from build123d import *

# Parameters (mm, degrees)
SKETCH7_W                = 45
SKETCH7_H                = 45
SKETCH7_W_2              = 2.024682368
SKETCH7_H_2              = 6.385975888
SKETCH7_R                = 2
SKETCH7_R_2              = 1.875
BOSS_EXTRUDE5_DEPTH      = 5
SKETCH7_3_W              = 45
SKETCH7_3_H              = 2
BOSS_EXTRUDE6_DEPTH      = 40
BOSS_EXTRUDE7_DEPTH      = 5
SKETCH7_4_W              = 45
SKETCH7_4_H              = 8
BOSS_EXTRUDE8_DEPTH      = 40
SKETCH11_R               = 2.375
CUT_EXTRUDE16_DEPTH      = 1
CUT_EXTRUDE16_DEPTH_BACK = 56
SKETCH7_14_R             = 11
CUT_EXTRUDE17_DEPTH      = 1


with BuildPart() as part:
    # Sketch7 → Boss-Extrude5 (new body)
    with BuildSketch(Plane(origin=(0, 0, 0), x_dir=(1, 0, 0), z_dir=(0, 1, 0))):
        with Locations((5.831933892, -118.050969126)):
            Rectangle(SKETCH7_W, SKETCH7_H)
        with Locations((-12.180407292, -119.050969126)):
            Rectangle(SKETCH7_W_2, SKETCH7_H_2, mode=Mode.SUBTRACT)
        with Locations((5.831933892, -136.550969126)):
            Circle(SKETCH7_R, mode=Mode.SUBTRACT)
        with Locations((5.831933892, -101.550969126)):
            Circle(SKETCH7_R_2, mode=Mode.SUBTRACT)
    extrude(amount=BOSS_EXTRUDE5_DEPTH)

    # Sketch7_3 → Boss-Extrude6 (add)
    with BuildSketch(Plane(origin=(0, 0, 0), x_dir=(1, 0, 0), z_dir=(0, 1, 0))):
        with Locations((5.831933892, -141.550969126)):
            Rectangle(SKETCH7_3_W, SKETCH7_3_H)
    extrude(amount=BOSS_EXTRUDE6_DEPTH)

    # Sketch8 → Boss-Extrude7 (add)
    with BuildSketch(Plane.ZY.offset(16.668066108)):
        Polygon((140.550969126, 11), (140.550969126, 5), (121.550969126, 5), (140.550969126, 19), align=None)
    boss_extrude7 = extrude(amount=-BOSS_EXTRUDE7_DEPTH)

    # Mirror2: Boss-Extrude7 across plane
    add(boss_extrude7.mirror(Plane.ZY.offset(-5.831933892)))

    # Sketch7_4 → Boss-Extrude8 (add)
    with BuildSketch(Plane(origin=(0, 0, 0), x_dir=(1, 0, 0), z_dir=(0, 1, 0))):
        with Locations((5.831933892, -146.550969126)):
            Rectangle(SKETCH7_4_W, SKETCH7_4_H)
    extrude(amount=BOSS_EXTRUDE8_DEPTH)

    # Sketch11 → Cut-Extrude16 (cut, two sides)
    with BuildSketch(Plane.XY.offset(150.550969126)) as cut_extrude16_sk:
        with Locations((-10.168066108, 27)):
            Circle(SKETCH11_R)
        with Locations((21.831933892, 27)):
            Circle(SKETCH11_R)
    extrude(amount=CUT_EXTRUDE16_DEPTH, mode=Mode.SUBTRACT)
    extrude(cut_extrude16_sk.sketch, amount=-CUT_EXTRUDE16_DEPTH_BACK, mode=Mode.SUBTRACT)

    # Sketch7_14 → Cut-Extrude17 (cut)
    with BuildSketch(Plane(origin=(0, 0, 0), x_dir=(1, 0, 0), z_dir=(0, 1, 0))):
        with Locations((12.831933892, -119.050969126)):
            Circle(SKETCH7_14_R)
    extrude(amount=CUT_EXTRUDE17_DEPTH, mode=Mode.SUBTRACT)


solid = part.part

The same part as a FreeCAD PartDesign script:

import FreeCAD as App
import Part
import Sketcher

V = App.Vector
Q = App.Units.Quantity


def add_polygon(sketch, points):
    """Adds a closed chain of lines whose ends are joined by coincident constraints."""
    first, n = sketch.GeometryCount, len(points)
    for a, b in zip(points, points[1:] + points[:1]):
        sketch.addGeometry(Part.LineSegment(App.Vector(*a, 0), App.Vector(*b, 0)), False)
    for i in range(n):
        sketch.addConstraint(Sketcher.Constraint("Coincident", first + i, 2, first + (i + 1) % n, 1))

doc = App.newDocument("Part")
body = doc.addObject("PartDesign::Body", "Body")

# Sketch on XZ plane
sketch1 = body.newObject("Sketcher::SketchObject", "Sketch")
sketch1.AttachmentSupport = (doc.getObject("XZ_Plane"), [""])
sketch1.MapMode = "FlatFace"
add_polygon(sketch1, [(-16.7, 95.6), (-16.7, 140.6), (28.3, 140.6), (28.3, 95.6)])  # lines 0-3
sketch1.addGeometry(Part.Circle(V(5.8, 136.6, 0), V(0, 0, 1), 2), False)  # 4
add_polygon(sketch1, [(-11.2, 122.2), (-13.2, 122.2), (-13.2, 115.9), (-11.2, 115.9)])  # lines 5-8
sketch1.addGeometry(Part.Circle(V(5.8, 101.6, 0), V(0, 0, 1), 1.9), False)  # 9
sketch1.addConstraint([
    Sketcher.Constraint("Vertical", 0),
    Sketcher.Constraint("Horizontal", 1),
    Sketcher.Constraint("Vertical", 2),
    Sketcher.Constraint("Horizontal", 3),
    Sketcher.Constraint("Horizontal", 5),
    Sketcher.Constraint("Vertical", 6),
    Sketcher.Constraint("Horizontal", 7),
    Sketcher.Constraint("Vertical", 8),
    Sketcher.Constraint("Vertical", 4, 3, 9, 3),
    Sketcher.Constraint("Equal", 3, 0),
    Sketcher.Constraint("Diameter", 4, Q("4 mm")),
    Sketcher.Constraint("Diameter", 9, Q("3.75 mm")),
    Sketcher.Constraint("DistanceX", 1, 1, 1, 2, Q("45 mm")),
    Sketcher.Constraint("DistanceY", 9, 3, 4, 3, Q("35 mm")),
    Sketcher.Constraint("DistanceY", 4, 3, 0, 2, Q("4 mm")),
    Sketcher.Constraint("DistanceX", 7, 2, 9, 3, Q("17 mm")),
    Sketcher.Constraint("DistanceX", 0, 2, 4, 3, Q("22.5 mm")),
    Sketcher.Constraint("DistanceX", 5, 2, 5, 1, Q("2.024682 mm")),
    Sketcher.Constraint("DistanceY", 6, 2, 6, 1, Q("6.385976 mm")),
    Sketcher.Constraint("DistanceY", -1, 1, 4, 3, Q("136.550969 mm")),
    Sketcher.Constraint("DistanceX", 5, 2, -1, 1, Q("13.192748 mm")),
    Sketcher.Constraint("DistanceY", -1, 1, 6, 2, Q("115.857981 mm")),
])
pad1 = body.newObject("PartDesign::Pad", "Pad")
pad1.Profile = sketch1
pad1.Length = 5
pad1.Reversed = True

# Sketch on XZ plane
sketch2 = body.newObject("Sketcher::SketchObject", "Sketch001")
sketch2.AttachmentSupport = (doc.getObject("XZ_Plane"), [""])
sketch2.MapMode = "FlatFace"
add_polygon(sketch2, [(-16.7, 140.6), (-16.7, 142.6), (28.3, 142.6), (28.3, 140.6)])  # lines 0-3
sketch2.addConstraint([
    Sketcher.Constraint("Vertical", 0),
    Sketcher.Constraint("Horizontal", 1),
    Sketcher.Constraint("Vertical", 2),
    Sketcher.Constraint("Horizontal", 3),
    Sketcher.Constraint("DistanceX", 1, 1, 1, 2, Q("45 mm")),
    Sketcher.Constraint("DistanceY", 0, 1, 0, 2, Q("2 mm")),
    Sketcher.Constraint("DistanceY", -1, 1, 0, 2, Q("142.550969 mm")),
    Sketcher.Constraint("DistanceX", 0, 2, -1, 1, Q("16.668066 mm")),
])
pad2 = body.newObject("PartDesign::Pad", "Pad001")
pad2.Profile = sketch2
pad2.Length = 40
pad2.Reversed = True

# Sketch on YZ plane
sketch3 = body.newObject("Sketcher::SketchObject", "Sketch002")
sketch3.AttachmentSupport = (doc.getObject("YZ_Plane"), [""])
sketch3.MapMode = "FlatFace"
sketch3.AttachmentOffset = App.Placement(V(0, 0, -16.668066), App.Rotation())
add_polygon(sketch3, [(5, 141), (19, 141), (5, 122)])  # lines 0-2
sketch3.addConstraint([
    Sketcher.Constraint("Horizontal", 0),
    Sketcher.Constraint("Vertical", 2),
    Sketcher.Constraint("DistanceX", 0, 1, 0, 2, Q("14 mm")),
    Sketcher.Constraint("DistanceY", 2, 1, 2, 2, Q("19 mm")),
    Sketcher.Constraint("DistanceX", -1, 1, 0, 2, Q("19 mm")),
    Sketcher.Constraint("DistanceY", -1, 1, 0, 2, Q("140.550969 mm")),
])
pad3 = body.newObject("PartDesign::Pad", "Pad002")
pad3.Profile = sketch3
pad3.Length = 5
doc.recompute()

datumplane = body.newObject("PartDesign::Plane", "DatumPlane")
datumplane.AttachmentSupport = (doc.getObject("YZ_Plane"), [""])
datumplane.MapMode = "FlatFace"
datumplane.AttachmentOffset = App.Placement(V(0, 0, 5.831934), App.Rotation())
mirrored = body.newObject("PartDesign::Mirrored", "Mirrored")
mirrored.Originals = [pad3]
mirrored.MirrorPlane = (datumplane, [""])
body.Tip = mirrored

# Sketch on XZ plane
sketch4 = body.newObject("Sketcher::SketchObject", "Sketch003")
sketch4.AttachmentSupport = (doc.getObject("XZ_Plane"), [""])
sketch4.MapMode = "FlatFace"
add_polygon(sketch4, [(-17, 143), (-17, 151), (28, 151), (28, 143)])  # lines 0-3
sketch4.addConstraint([
    Sketcher.Constraint("Vertical", 0),
    Sketcher.Constraint("Horizontal", 1),
    Sketcher.Constraint("Vertical", 2),
    Sketcher.Constraint("Horizontal", 3),
    Sketcher.Constraint("DistanceX", 1, 1, 1, 2, Q("45 mm")),
    Sketcher.Constraint("DistanceY", 0, 1, 0, 2, Q("8 mm")),
    Sketcher.Constraint("DistanceY", -1, 1, 0, 2, Q("150.550969 mm")),
    Sketcher.Constraint("DistanceX", 0, 2, -1, 1, Q("16.668066 mm")),
])
pad4 = body.newObject("PartDesign::Pad", "Pad003")
pad4.Profile = sketch4
pad4.Length = 40
pad4.Reversed = True

# Sketch on XY plane
sketch5 = body.newObject("Sketcher::SketchObject", "Sketch004")
sketch5.AttachmentSupport = (doc.getObject("XY_Plane"), [""])
sketch5.MapMode = "FlatFace"
sketch5.AttachmentOffset = App.Placement(V(0, 0, 150.550969), App.Rotation())
sketch5.addGeometry([
    Part.Circle(V(-10.2, 27, 0), V(0, 0, 1), 2.4),
    Part.Circle(V(21.8, 27, 0), V(0, 0, 1), 2.4),
], False)
sketch5.addConstraint([
    Sketcher.Constraint("Equal", 0, 1),
    Sketcher.Constraint("Horizontal", 0, 3, 1, 3),
    Sketcher.Constraint("Diameter", 0, Q("4.75 mm")),
    Sketcher.Constraint("DistanceY", -1, 1, 0, 3, Q("27 mm")),
    Sketcher.Constraint("DistanceX", 0, 3, 1, 3, Q("32 mm")),
    Sketcher.Constraint("DistanceX", 0, 3, -1, 1, Q("10.168066 mm")),
])
pocket1 = body.newObject("PartDesign::Pocket", "Pocket")
pocket1.Profile = sketch5
pocket1.Type = "ThroughAll"
pocket1.Midplane = True

# Sketch on XZ plane
sketch6 = body.newObject("Sketcher::SketchObject", "Sketch005")
sketch6.AttachmentSupport = (doc.getObject("XZ_Plane"), [""])
sketch6.MapMode = "FlatFace"
sketch6.addGeometry(Part.Circle(V(13, 119, 0), V(0, 0, 1), 11), False)
sketch6.addConstraint([
    Sketcher.Constraint("Diameter", 0, Q("22 mm")),
    Sketcher.Constraint("DistanceY", -1, 1, 0, 3, Q("119.050969 mm")),
    Sketcher.Constraint("DistanceX", -1, 1, 0, 3, Q("12.831934 mm")),
])
pocket2 = body.newObject("PartDesign::Pocket", "Pocket001")
pocket2.Profile = sketch6
pocket2.Length = 1

doc.recompute()
